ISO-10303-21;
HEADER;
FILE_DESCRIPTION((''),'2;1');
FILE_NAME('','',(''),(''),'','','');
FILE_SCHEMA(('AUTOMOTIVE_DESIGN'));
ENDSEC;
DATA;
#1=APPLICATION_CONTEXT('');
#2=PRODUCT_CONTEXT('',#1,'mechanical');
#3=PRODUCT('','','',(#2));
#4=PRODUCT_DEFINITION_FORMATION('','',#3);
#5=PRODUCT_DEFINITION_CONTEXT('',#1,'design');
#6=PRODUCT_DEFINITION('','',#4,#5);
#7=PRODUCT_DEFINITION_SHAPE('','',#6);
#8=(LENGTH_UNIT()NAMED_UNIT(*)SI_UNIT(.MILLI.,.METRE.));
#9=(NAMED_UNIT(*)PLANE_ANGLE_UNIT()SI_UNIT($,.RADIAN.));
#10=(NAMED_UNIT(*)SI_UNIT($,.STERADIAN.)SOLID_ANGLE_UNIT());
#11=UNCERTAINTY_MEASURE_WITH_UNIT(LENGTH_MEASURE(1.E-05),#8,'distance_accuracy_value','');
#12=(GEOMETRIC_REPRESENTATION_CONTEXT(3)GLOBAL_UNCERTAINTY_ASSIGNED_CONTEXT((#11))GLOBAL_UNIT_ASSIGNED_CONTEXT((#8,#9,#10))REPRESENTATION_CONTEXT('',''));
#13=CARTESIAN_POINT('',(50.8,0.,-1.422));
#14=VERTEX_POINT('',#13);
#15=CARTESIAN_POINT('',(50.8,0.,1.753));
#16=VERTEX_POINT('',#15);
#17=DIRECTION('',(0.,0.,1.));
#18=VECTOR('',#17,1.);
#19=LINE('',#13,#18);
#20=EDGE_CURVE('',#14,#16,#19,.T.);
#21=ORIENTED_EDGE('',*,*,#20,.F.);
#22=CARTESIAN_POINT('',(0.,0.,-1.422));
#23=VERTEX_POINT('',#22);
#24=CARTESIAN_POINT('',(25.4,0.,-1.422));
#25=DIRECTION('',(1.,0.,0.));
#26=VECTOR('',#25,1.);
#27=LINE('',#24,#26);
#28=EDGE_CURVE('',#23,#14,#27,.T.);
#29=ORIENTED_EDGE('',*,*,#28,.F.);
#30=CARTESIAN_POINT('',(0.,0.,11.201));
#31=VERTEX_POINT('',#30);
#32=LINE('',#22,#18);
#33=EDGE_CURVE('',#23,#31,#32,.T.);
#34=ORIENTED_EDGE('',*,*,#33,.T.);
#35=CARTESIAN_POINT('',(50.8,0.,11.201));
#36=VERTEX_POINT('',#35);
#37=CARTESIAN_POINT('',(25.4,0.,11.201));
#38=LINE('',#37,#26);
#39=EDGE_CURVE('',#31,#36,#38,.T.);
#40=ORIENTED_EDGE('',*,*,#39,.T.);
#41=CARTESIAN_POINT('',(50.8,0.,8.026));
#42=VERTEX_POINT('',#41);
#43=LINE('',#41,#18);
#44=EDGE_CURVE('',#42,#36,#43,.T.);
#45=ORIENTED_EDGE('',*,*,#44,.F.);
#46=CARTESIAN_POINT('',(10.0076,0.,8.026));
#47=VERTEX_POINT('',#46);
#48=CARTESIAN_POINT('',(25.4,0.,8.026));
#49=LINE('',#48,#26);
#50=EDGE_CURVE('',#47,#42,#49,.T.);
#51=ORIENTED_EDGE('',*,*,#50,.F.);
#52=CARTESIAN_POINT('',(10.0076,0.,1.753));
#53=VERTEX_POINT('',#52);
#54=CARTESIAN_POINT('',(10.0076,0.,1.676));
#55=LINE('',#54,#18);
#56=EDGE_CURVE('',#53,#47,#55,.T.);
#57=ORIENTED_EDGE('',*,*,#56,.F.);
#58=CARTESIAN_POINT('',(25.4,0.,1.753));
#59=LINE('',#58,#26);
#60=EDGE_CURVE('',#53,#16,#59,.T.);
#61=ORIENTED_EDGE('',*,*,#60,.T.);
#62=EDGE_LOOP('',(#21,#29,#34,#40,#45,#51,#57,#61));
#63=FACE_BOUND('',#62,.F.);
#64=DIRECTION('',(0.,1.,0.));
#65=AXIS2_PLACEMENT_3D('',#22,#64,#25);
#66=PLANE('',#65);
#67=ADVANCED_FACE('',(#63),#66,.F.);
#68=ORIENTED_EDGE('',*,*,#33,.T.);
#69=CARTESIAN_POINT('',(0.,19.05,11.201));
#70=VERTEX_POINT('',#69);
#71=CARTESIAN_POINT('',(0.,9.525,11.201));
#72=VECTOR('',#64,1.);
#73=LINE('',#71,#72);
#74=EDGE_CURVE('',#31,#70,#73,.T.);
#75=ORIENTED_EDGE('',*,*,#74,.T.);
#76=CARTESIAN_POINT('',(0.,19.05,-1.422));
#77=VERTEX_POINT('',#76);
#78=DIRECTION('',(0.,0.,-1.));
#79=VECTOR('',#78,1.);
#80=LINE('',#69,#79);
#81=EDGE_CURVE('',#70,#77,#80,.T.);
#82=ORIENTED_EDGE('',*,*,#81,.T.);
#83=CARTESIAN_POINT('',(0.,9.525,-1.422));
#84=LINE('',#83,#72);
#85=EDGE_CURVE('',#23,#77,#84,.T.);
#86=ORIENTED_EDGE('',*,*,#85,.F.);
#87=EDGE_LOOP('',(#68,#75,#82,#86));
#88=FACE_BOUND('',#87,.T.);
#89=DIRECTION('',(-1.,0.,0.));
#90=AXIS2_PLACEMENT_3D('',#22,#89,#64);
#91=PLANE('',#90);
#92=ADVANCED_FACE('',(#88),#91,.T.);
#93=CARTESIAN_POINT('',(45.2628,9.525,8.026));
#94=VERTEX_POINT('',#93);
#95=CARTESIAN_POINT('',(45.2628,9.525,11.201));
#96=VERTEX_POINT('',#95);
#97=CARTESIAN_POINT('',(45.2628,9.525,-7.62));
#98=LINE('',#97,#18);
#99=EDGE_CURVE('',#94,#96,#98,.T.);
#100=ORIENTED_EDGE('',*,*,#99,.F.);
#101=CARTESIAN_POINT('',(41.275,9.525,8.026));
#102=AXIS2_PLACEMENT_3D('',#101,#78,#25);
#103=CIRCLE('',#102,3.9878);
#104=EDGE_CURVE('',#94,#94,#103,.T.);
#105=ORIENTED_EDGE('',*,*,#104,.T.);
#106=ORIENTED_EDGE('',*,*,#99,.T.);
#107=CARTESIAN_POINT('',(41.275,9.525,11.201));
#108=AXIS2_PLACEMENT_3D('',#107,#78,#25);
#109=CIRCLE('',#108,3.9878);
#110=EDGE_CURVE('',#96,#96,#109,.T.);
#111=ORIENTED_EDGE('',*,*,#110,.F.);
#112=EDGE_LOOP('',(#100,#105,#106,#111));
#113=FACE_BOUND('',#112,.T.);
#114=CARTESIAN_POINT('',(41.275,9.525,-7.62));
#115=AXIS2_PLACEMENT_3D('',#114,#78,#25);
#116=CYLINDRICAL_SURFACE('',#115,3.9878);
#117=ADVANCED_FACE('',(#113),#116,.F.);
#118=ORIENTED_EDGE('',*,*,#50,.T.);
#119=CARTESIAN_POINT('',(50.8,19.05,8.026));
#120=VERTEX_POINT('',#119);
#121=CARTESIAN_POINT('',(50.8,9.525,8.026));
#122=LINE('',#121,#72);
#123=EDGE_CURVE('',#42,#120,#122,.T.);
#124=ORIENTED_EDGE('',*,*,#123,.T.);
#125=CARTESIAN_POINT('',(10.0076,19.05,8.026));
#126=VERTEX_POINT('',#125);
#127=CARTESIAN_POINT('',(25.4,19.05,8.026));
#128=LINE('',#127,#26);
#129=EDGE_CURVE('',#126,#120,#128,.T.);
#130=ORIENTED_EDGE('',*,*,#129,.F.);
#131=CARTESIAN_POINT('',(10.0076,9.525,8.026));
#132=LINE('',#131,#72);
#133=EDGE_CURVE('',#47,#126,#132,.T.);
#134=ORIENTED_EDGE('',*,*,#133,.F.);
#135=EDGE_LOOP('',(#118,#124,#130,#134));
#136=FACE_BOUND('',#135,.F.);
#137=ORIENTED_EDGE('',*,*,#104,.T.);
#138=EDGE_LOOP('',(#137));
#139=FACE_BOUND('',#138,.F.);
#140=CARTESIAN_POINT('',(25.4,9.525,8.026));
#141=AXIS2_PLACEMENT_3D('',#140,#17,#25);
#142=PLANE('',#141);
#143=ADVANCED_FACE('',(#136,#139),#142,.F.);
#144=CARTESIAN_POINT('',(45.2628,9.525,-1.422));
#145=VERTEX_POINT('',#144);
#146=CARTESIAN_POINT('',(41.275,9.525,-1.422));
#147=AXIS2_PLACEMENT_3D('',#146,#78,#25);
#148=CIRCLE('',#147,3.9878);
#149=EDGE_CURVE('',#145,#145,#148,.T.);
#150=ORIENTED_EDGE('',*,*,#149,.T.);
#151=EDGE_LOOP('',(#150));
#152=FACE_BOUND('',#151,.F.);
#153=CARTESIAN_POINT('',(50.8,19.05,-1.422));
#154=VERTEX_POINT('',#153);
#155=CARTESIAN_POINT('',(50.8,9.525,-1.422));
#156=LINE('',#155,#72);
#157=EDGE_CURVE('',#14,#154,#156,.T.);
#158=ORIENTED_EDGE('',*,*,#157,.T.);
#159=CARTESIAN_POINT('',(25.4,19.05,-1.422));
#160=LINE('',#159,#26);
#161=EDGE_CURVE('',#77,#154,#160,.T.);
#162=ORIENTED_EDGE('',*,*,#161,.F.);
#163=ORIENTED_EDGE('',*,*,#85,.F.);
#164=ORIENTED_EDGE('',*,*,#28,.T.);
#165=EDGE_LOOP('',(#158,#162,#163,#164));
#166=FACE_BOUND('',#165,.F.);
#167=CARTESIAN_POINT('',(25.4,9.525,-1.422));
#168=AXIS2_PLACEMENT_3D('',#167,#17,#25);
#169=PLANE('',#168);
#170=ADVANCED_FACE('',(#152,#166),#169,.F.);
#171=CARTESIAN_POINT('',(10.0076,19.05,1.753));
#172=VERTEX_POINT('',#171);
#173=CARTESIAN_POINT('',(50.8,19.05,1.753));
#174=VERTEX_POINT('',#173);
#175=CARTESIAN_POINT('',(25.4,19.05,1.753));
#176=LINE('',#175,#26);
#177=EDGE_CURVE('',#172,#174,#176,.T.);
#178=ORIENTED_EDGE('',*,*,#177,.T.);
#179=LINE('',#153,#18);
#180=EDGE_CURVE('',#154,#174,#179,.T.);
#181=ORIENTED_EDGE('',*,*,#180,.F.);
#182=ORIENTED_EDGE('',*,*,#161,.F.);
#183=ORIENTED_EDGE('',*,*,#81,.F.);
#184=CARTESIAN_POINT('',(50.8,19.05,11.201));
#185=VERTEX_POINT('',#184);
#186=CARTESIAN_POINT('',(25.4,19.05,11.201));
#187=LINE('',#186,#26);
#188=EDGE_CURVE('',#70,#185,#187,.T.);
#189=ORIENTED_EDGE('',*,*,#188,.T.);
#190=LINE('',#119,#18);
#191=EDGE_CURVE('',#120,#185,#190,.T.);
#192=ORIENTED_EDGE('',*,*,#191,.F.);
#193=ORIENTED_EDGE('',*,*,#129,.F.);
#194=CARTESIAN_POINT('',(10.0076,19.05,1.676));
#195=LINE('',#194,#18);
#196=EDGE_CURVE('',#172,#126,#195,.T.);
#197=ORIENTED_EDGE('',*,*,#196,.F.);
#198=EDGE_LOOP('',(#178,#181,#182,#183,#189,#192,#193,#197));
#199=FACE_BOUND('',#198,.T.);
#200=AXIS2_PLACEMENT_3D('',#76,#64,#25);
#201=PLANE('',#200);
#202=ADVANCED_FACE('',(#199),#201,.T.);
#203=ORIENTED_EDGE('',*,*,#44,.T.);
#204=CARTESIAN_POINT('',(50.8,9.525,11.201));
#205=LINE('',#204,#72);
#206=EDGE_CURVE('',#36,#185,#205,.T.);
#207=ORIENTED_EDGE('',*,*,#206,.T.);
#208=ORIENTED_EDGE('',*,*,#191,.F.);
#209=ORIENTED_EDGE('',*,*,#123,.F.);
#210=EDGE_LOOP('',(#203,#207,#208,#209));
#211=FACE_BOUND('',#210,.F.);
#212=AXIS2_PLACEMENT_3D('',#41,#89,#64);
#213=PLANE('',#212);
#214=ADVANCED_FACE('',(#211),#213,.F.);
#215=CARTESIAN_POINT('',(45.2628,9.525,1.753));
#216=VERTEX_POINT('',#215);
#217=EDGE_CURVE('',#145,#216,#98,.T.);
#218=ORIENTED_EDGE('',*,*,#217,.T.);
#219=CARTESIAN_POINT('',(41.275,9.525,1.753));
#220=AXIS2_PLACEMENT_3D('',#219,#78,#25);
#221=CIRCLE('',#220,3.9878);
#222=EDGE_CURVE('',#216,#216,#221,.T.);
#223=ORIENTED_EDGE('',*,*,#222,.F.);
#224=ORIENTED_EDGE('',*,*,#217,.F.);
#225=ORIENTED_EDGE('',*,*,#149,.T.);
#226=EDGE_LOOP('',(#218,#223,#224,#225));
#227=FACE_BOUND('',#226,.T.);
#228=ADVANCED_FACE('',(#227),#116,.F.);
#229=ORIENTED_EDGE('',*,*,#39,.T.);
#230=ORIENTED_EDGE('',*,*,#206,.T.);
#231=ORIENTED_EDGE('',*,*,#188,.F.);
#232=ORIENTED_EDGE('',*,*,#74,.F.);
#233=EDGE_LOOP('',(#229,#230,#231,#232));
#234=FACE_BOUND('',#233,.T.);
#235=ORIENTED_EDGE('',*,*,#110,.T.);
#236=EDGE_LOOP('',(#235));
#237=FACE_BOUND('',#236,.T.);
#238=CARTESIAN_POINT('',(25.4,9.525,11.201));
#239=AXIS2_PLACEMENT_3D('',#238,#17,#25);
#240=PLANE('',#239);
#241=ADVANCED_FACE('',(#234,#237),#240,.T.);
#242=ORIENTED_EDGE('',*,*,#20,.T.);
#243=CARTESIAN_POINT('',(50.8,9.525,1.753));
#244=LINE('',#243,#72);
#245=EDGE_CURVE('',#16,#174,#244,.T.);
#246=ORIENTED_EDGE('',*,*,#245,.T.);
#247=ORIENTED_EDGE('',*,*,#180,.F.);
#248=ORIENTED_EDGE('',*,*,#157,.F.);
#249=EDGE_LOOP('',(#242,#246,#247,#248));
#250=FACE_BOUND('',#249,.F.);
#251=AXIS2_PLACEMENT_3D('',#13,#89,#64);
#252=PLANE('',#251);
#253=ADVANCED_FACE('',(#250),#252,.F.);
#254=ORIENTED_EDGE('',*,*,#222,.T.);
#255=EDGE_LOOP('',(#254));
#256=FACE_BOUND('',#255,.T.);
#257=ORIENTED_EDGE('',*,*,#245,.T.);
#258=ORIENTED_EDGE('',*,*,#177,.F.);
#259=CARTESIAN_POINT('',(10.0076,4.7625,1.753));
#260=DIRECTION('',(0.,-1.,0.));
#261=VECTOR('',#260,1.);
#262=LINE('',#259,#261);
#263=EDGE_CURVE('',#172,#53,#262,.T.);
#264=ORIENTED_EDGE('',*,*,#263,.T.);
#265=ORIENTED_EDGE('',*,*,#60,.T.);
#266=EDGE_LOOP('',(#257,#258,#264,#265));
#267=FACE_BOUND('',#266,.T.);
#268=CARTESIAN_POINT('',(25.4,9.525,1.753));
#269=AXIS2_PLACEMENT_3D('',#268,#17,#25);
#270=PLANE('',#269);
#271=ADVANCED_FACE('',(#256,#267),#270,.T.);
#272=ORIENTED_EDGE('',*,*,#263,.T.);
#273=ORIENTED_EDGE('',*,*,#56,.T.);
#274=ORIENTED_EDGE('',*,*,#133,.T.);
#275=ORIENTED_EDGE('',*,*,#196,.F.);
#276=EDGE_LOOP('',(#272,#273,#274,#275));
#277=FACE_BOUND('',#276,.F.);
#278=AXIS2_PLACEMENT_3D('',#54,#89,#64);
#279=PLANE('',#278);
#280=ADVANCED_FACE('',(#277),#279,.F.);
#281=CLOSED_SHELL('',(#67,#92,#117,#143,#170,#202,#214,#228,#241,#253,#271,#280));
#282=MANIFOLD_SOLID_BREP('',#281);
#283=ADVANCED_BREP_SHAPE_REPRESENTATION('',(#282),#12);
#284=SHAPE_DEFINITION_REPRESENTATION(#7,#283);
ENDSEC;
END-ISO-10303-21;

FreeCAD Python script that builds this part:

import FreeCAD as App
import Part
import Sketcher
from FreeCAD import Vector
Q = App.Units.Quantity


def add_polygon(sketch, points):
    """Adds a closed chain of lines whose ends are joined by coincident constraints."""
    first, n = sketch.GeometryCount, len(points)
    for a, b in zip(points, points[1:] + points[:1]):
        sketch.addGeometry(Part.LineSegment(App.Vector(*a, 0), App.Vector(*b, 0)), False)
    for i in range(n):
        sketch.addConstraint(Sketcher.Constraint("Coincident", first + i, 2, first + (i + 1) % n, 1))

doc = App.newDocument("Part")
body = doc.addObject("PartDesign::Body", "Body")

# Sketch on XY plane
sketch1 = body.newObject("Sketcher::SketchObject", "Sketch")
sketch1.AttachmentSupport = (doc.getObject("XY_Plane"), [""])
sketch1.MapMode = "FlatFace"
sketch1.AttachmentOffset = App.Placement(Vector(0, 0, -0.3 * 25.4), App.Rotation())
sketch1.addGeometry(Part.Circle(Vector(41.3, 9.5, 0), Vector(0, 0, 1), 4), False)
sketch1.addConstraint(Sketcher.Constraint("Diameter", 0, Q("0.314 in")))
sketch1.addConstraint(Sketcher.Constraint("DistanceX", -1, 1, 0, 3, Q("1.625 in")))
sketch1.addConstraint(Sketcher.Constraint("DistanceY", -1, 1, 0, 3, Q("0.375 in")))
pad1 = body.newObject("PartDesign::Pad", "Pad")
pad1.Profile = sketch1
pad1.Length = Q("1 in")
body2 = doc.addObject("PartDesign::Body", "Body001")

# Sketch on XY plane
sketch2 = body2.newObject("Sketcher::SketchObject", "Sketch001")
sketch2.AttachmentSupport = (doc.getObject("XY_Plane001"), [""])
sketch2.MapMode = "FlatFace"
sketch2.AttachmentOffset = App.Placement(Vector(0, 0, -1.422), App.Rotation())
add_polygon(sketch2, [(0, 19), (0, 0), (51, 0), (51, 19)])  # lines 0-3
sketch2.addConstraint(Sketcher.Constraint("Vertical", 0))
sketch2.addConstraint(Sketcher.Constraint("Horizontal", 1))
sketch2.addConstraint(Sketcher.Constraint("Vertical", 2))
sketch2.addConstraint(Sketcher.Constraint("Horizontal", 3))
sketch2.addConstraint(Sketcher.Constraint("Coincident", 0, 2, -1, 1))
sketch2.addConstraint(Sketcher.Constraint("DistanceX", 1, 1, 1, 2, Q("2 in")))
sketch2.addConstraint(Sketcher.Constraint("DistanceY", 0, 2, 0, 1, Q("0.75 in")))
pad2 = body2.newObject("PartDesign::Pad", "Pad001")
pad2.Profile = sketch2
pad2.Length = Q("0.125 in")
body3 = doc.addObject("PartDesign::Body", "Body002")

# Sketch on XY plane
sketch3 = body3.newObject("Sketcher::SketchObject", "Sketch002")
sketch3.AttachmentSupport = (doc.getObject("XY_Plane002"), [""])
sketch3.MapMode = "FlatFace"
sketch3.AttachmentOffset = App.Placement(Vector(0, 0, 1.676), App.Rotation())
add_polygon(sketch3, [(0, 19), (0, 0), (10, 0), (10, 19)])  # lines 0-3
sketch3.addConstraint(Sketcher.Constraint("Vertical", 0))
sketch3.addConstraint(Sketcher.Constraint("Horizontal", 1))
sketch3.addConstraint(Sketcher.Constraint("Vertical", 2))
sketch3.addConstraint(Sketcher.Constraint("Horizontal", 3))
sketch3.addConstraint(Sketcher.Constraint("Coincident", 0, 2, -1, 1))
sketch3.addConstraint(Sketcher.Constraint("DistanceY", 0, 2, 0, 1, Q("0.75 in")))
sketch3.addConstraint(Sketcher.Constraint("DistanceX", 1, 1, 1, 2, Q("0.394 in")))
pad3 = body3.newObject("PartDesign::Pad", "Pad002")
pad3.Profile = sketch3
pad3.Length = Q("0.25 in")
body4 = doc.addObject("PartDesign::Body", "Body003")
body4.AllowCompound = True

# Sketch on XY plane
sketch4 = body4.newObject("Sketcher::SketchObject", "Sketch003")
sketch4.AttachmentSupport = (doc.getObject("XY_Plane003"), [""])
sketch4.MapMode = "FlatFace"
sketch4.AttachmentOffset = App.Placement(Vector(0, 0, 8.026), App.Rotation())
add_polygon(sketch4, [(0, 19), (0, 0), (51, 0), (51, 19)])  # lines 0-3
sketch4.addConstraint(Sketcher.Constraint("Vertical", 0))
sketch4.addConstraint(Sketcher.Constraint("Horizontal", 1))
sketch4.addConstraint(Sketcher.Constraint("Vertical", 2))
sketch4.addConstraint(Sketcher.Constraint("Horizontal", 3))
sketch4.addConstraint(Sketcher.Constraint("Coincident", 0, 2, -1, 1))
sketch4.addConstraint(Sketcher.Constraint("DistanceX", 1, 1, 1, 2, Q("2 in")))
sketch4.addConstraint(Sketcher.Constraint("DistanceY", 0, 2, 0, 1, Q("0.75 in")))
pad4 = body4.newObject("PartDesign::Pad", "Pad003")
pad4.Profile = sketch4
pad4.Length = Q("0.125 in")
doc.recompute()

boolean = body4.newObject("PartDesign::Boolean", "Boolean")
boolean.Type = "Fuse"
boolean.addObjects([body2])
doc.recompute()

boolean2 = body4.newObject("PartDesign::Boolean", "Boolean001")
boolean2.Type = "Fuse"
boolean2.addObjects([body3])
doc.recompute()

boolean3 = body4.newObject("PartDesign::Boolean", "Boolean002")
boolean3.Type = "Cut"
boolean3.addObjects([body])

doc.recompute()
